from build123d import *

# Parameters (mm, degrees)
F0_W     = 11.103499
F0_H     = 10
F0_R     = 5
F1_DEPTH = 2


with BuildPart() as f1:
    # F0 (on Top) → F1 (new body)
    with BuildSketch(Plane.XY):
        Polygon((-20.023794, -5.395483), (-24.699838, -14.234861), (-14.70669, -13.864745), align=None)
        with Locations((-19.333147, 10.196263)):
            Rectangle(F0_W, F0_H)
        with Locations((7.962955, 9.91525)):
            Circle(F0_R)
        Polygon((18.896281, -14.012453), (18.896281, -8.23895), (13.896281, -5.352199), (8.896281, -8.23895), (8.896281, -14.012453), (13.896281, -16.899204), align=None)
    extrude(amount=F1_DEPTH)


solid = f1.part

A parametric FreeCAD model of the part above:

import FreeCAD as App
import Part
import Sketcher
Q = App.Units.Quantity

doc = App.newDocument("Part")
body = doc.addObject("PartDesign::Body", "Body")
body.AllowCompound = True

# Sketch on XY plane
sketch1 = body.newObject("Sketcher::SketchObject", "Sketch")
sketch1.AttachmentSupport = (doc.getObject("XY_Plane"), [""])
sketch1.MapMode = "FlatFace"
sketch1.addGeometry([
    Part.LineSegment(App.Vector(-20.023794, -5.395483, 0), App.Vector(-24.699838, -14.234861, 0)),  # 0
    Part.LineSegment(App.Vector(-24.699838, -14.234861, 0), App.Vector(-14.70669, -13.864745, 0)),  # 1
    Part.LineSegment(App.Vector(-14.70669, -13.864745, 0), App.Vector(-20.023794, -5.395483, 0)),  # 2
    Part.LineSegment(App.Vector(-24.884896, 15.196263, 0), App.Vector(-24.884896, 5.196263, 0)),  # 3
    Part.LineSegment(App.Vector(-24.884896, 5.196263, 0), App.Vector(-13.781398, 5.196263, 0)),  # 4
    Part.LineSegment(App.Vector(-13.781398, 5.196263, 0), App.Vector(-13.781398, 15.196263, 0)),  # 5
    Part.LineSegment(App.Vector(-13.781398, 15.196263, 0), App.Vector(-24.884896, 15.196263, 0)),  # 6
    Part.Circle(App.Vector(7.962955, 9.91525, 0), App.Vector(0, 0, 1), 5),  # 7
    Part.LineSegment(App.Vector(18.896281, -14.012453, 0), App.Vector(18.896281, -8.23895, 0)),  # 8
    Part.LineSegment(App.Vector(18.896281, -8.23895, 0), App.Vector(13.896281, -5.352199, 0)),  # 9
    Part.LineSegment(App.Vector(13.896281, -5.352199, 0), App.Vector(8.896281, -8.23895, 0)),  # 10
    Part.LineSegment(App.Vector(8.896281, -8.23895, 0), App.Vector(8.896281, -14.012453, 0)),  # 11
    Part.LineSegment(App.Vector(8.896281, -14.012453, 0), App.Vector(13.896281, -16.899204, 0)),  # 12
    Part.LineSegment(App.Vector(13.896281, -16.899204, 0), App.Vector(18.896281, -14.012453, 0)),  # 13
], False)
sketch1.addConstraint([
    Sketcher.Constraint("Coincident", 0, 2, 1, 1),
    Sketcher.Constraint("Coincident", 1, 2, 2, 1),
    Sketcher.Constraint("Coincident", 2, 2, 0, 1),
    Sketcher.Constraint("Coincident", 3, 2, 4, 1),
    Sketcher.Constraint("Coincident", 4, 2, 5, 1),
    Sketcher.Constraint("Coincident", 5, 2, 6, 1),
    Sketcher.Constraint("Coincident", 6, 2, 3, 1),
    Sketcher.Constraint("Coincident", 8, 2, 9, 1),
    Sketcher.Constraint("Coincident", 9, 2, 10, 1),
    Sketcher.Constraint("Coincident", 10, 2, 11, 1),
    Sketcher.Constraint("Coincident", 11, 2, 12, 1),
    Sketcher.Constraint("Coincident", 12, 2, 13, 1),
    Sketcher.Constraint("Coincident", 13, 2, 8, 1),
    Sketcher.Constraint("Vertical", 3),
    Sketcher.Constraint("Horizontal", 4),
    Sketcher.Constraint("Vertical", 5),
    Sketcher.Constraint("Horizontal", 6),
    Sketcher.Constraint("Vertical", 8),
    Sketcher.Constraint("Vertical", 11),
    Sketcher.Constraint("Parallel", 9, 12),
    Sketcher.Constraint("Parallel", 10, 13),
    Sketcher.Constraint("Horizontal", 8, 2, 10, 2),
    Sketcher.Constraint("Horizontal", 11, 2, 13, 2),
    Sketcher.Constraint("Vertical", 9, 2, 12, 2),
    Sketcher.Constraint("Equal", 0, 1),
    Sketcher.Constraint("Equal", 1, 2),
    Sketcher.Constraint("Diameter", 7, 10.0),
    Sketcher.Constraint("DistanceY", 3, 2, 3, 1, 10.0),
    Sketcher.Constraint("Angle", 9, Q("150.000003 deg")),
    Sketcher.Constraint("Distance", 0, 10.0),
    Sketcher.Constraint("DistanceX", 9, 2, 8, 2, 5.0),
    Sketcher.Constraint("DistanceX", 4, 1, 4, 2, 11.103499),
    Sketcher.Constraint("DistanceY", 9, 2, -1, 1, 5.352199),
    Sketcher.Constraint("DistanceY", 8, 2, 7, 3, 18.1542),
    Sketcher.Constraint("DistanceY", 8, 1, 8, 2, 5.773503),
    Sketcher.Constraint("DistanceX", 0, 2, -1, 1, 24.699838),
    Sketcher.Constraint("DistanceY", 0, 2, -1, 1, 14.234861),
    Sketcher.Constraint("DistanceX", 1, 2, -1, 1, 14.70669),
    Sketcher.Constraint("DistanceX", -1, 1, 8, 2, 18.896281),
    Sketcher.Constraint("DistanceX", 2, 2, 7, 3, 27.986749),
    Sketcher.Constraint("DistanceX", 3, 2, 0, 2, 0.185059),
    Sketcher.Constraint("DistanceY", 1, 2, 3, 2, 19.061008),
])
pad1 = body.newObject("PartDesign::Pad", "Pad")
pad1.Profile = sketch1
pad1.Length = 2

doc.recompute()
